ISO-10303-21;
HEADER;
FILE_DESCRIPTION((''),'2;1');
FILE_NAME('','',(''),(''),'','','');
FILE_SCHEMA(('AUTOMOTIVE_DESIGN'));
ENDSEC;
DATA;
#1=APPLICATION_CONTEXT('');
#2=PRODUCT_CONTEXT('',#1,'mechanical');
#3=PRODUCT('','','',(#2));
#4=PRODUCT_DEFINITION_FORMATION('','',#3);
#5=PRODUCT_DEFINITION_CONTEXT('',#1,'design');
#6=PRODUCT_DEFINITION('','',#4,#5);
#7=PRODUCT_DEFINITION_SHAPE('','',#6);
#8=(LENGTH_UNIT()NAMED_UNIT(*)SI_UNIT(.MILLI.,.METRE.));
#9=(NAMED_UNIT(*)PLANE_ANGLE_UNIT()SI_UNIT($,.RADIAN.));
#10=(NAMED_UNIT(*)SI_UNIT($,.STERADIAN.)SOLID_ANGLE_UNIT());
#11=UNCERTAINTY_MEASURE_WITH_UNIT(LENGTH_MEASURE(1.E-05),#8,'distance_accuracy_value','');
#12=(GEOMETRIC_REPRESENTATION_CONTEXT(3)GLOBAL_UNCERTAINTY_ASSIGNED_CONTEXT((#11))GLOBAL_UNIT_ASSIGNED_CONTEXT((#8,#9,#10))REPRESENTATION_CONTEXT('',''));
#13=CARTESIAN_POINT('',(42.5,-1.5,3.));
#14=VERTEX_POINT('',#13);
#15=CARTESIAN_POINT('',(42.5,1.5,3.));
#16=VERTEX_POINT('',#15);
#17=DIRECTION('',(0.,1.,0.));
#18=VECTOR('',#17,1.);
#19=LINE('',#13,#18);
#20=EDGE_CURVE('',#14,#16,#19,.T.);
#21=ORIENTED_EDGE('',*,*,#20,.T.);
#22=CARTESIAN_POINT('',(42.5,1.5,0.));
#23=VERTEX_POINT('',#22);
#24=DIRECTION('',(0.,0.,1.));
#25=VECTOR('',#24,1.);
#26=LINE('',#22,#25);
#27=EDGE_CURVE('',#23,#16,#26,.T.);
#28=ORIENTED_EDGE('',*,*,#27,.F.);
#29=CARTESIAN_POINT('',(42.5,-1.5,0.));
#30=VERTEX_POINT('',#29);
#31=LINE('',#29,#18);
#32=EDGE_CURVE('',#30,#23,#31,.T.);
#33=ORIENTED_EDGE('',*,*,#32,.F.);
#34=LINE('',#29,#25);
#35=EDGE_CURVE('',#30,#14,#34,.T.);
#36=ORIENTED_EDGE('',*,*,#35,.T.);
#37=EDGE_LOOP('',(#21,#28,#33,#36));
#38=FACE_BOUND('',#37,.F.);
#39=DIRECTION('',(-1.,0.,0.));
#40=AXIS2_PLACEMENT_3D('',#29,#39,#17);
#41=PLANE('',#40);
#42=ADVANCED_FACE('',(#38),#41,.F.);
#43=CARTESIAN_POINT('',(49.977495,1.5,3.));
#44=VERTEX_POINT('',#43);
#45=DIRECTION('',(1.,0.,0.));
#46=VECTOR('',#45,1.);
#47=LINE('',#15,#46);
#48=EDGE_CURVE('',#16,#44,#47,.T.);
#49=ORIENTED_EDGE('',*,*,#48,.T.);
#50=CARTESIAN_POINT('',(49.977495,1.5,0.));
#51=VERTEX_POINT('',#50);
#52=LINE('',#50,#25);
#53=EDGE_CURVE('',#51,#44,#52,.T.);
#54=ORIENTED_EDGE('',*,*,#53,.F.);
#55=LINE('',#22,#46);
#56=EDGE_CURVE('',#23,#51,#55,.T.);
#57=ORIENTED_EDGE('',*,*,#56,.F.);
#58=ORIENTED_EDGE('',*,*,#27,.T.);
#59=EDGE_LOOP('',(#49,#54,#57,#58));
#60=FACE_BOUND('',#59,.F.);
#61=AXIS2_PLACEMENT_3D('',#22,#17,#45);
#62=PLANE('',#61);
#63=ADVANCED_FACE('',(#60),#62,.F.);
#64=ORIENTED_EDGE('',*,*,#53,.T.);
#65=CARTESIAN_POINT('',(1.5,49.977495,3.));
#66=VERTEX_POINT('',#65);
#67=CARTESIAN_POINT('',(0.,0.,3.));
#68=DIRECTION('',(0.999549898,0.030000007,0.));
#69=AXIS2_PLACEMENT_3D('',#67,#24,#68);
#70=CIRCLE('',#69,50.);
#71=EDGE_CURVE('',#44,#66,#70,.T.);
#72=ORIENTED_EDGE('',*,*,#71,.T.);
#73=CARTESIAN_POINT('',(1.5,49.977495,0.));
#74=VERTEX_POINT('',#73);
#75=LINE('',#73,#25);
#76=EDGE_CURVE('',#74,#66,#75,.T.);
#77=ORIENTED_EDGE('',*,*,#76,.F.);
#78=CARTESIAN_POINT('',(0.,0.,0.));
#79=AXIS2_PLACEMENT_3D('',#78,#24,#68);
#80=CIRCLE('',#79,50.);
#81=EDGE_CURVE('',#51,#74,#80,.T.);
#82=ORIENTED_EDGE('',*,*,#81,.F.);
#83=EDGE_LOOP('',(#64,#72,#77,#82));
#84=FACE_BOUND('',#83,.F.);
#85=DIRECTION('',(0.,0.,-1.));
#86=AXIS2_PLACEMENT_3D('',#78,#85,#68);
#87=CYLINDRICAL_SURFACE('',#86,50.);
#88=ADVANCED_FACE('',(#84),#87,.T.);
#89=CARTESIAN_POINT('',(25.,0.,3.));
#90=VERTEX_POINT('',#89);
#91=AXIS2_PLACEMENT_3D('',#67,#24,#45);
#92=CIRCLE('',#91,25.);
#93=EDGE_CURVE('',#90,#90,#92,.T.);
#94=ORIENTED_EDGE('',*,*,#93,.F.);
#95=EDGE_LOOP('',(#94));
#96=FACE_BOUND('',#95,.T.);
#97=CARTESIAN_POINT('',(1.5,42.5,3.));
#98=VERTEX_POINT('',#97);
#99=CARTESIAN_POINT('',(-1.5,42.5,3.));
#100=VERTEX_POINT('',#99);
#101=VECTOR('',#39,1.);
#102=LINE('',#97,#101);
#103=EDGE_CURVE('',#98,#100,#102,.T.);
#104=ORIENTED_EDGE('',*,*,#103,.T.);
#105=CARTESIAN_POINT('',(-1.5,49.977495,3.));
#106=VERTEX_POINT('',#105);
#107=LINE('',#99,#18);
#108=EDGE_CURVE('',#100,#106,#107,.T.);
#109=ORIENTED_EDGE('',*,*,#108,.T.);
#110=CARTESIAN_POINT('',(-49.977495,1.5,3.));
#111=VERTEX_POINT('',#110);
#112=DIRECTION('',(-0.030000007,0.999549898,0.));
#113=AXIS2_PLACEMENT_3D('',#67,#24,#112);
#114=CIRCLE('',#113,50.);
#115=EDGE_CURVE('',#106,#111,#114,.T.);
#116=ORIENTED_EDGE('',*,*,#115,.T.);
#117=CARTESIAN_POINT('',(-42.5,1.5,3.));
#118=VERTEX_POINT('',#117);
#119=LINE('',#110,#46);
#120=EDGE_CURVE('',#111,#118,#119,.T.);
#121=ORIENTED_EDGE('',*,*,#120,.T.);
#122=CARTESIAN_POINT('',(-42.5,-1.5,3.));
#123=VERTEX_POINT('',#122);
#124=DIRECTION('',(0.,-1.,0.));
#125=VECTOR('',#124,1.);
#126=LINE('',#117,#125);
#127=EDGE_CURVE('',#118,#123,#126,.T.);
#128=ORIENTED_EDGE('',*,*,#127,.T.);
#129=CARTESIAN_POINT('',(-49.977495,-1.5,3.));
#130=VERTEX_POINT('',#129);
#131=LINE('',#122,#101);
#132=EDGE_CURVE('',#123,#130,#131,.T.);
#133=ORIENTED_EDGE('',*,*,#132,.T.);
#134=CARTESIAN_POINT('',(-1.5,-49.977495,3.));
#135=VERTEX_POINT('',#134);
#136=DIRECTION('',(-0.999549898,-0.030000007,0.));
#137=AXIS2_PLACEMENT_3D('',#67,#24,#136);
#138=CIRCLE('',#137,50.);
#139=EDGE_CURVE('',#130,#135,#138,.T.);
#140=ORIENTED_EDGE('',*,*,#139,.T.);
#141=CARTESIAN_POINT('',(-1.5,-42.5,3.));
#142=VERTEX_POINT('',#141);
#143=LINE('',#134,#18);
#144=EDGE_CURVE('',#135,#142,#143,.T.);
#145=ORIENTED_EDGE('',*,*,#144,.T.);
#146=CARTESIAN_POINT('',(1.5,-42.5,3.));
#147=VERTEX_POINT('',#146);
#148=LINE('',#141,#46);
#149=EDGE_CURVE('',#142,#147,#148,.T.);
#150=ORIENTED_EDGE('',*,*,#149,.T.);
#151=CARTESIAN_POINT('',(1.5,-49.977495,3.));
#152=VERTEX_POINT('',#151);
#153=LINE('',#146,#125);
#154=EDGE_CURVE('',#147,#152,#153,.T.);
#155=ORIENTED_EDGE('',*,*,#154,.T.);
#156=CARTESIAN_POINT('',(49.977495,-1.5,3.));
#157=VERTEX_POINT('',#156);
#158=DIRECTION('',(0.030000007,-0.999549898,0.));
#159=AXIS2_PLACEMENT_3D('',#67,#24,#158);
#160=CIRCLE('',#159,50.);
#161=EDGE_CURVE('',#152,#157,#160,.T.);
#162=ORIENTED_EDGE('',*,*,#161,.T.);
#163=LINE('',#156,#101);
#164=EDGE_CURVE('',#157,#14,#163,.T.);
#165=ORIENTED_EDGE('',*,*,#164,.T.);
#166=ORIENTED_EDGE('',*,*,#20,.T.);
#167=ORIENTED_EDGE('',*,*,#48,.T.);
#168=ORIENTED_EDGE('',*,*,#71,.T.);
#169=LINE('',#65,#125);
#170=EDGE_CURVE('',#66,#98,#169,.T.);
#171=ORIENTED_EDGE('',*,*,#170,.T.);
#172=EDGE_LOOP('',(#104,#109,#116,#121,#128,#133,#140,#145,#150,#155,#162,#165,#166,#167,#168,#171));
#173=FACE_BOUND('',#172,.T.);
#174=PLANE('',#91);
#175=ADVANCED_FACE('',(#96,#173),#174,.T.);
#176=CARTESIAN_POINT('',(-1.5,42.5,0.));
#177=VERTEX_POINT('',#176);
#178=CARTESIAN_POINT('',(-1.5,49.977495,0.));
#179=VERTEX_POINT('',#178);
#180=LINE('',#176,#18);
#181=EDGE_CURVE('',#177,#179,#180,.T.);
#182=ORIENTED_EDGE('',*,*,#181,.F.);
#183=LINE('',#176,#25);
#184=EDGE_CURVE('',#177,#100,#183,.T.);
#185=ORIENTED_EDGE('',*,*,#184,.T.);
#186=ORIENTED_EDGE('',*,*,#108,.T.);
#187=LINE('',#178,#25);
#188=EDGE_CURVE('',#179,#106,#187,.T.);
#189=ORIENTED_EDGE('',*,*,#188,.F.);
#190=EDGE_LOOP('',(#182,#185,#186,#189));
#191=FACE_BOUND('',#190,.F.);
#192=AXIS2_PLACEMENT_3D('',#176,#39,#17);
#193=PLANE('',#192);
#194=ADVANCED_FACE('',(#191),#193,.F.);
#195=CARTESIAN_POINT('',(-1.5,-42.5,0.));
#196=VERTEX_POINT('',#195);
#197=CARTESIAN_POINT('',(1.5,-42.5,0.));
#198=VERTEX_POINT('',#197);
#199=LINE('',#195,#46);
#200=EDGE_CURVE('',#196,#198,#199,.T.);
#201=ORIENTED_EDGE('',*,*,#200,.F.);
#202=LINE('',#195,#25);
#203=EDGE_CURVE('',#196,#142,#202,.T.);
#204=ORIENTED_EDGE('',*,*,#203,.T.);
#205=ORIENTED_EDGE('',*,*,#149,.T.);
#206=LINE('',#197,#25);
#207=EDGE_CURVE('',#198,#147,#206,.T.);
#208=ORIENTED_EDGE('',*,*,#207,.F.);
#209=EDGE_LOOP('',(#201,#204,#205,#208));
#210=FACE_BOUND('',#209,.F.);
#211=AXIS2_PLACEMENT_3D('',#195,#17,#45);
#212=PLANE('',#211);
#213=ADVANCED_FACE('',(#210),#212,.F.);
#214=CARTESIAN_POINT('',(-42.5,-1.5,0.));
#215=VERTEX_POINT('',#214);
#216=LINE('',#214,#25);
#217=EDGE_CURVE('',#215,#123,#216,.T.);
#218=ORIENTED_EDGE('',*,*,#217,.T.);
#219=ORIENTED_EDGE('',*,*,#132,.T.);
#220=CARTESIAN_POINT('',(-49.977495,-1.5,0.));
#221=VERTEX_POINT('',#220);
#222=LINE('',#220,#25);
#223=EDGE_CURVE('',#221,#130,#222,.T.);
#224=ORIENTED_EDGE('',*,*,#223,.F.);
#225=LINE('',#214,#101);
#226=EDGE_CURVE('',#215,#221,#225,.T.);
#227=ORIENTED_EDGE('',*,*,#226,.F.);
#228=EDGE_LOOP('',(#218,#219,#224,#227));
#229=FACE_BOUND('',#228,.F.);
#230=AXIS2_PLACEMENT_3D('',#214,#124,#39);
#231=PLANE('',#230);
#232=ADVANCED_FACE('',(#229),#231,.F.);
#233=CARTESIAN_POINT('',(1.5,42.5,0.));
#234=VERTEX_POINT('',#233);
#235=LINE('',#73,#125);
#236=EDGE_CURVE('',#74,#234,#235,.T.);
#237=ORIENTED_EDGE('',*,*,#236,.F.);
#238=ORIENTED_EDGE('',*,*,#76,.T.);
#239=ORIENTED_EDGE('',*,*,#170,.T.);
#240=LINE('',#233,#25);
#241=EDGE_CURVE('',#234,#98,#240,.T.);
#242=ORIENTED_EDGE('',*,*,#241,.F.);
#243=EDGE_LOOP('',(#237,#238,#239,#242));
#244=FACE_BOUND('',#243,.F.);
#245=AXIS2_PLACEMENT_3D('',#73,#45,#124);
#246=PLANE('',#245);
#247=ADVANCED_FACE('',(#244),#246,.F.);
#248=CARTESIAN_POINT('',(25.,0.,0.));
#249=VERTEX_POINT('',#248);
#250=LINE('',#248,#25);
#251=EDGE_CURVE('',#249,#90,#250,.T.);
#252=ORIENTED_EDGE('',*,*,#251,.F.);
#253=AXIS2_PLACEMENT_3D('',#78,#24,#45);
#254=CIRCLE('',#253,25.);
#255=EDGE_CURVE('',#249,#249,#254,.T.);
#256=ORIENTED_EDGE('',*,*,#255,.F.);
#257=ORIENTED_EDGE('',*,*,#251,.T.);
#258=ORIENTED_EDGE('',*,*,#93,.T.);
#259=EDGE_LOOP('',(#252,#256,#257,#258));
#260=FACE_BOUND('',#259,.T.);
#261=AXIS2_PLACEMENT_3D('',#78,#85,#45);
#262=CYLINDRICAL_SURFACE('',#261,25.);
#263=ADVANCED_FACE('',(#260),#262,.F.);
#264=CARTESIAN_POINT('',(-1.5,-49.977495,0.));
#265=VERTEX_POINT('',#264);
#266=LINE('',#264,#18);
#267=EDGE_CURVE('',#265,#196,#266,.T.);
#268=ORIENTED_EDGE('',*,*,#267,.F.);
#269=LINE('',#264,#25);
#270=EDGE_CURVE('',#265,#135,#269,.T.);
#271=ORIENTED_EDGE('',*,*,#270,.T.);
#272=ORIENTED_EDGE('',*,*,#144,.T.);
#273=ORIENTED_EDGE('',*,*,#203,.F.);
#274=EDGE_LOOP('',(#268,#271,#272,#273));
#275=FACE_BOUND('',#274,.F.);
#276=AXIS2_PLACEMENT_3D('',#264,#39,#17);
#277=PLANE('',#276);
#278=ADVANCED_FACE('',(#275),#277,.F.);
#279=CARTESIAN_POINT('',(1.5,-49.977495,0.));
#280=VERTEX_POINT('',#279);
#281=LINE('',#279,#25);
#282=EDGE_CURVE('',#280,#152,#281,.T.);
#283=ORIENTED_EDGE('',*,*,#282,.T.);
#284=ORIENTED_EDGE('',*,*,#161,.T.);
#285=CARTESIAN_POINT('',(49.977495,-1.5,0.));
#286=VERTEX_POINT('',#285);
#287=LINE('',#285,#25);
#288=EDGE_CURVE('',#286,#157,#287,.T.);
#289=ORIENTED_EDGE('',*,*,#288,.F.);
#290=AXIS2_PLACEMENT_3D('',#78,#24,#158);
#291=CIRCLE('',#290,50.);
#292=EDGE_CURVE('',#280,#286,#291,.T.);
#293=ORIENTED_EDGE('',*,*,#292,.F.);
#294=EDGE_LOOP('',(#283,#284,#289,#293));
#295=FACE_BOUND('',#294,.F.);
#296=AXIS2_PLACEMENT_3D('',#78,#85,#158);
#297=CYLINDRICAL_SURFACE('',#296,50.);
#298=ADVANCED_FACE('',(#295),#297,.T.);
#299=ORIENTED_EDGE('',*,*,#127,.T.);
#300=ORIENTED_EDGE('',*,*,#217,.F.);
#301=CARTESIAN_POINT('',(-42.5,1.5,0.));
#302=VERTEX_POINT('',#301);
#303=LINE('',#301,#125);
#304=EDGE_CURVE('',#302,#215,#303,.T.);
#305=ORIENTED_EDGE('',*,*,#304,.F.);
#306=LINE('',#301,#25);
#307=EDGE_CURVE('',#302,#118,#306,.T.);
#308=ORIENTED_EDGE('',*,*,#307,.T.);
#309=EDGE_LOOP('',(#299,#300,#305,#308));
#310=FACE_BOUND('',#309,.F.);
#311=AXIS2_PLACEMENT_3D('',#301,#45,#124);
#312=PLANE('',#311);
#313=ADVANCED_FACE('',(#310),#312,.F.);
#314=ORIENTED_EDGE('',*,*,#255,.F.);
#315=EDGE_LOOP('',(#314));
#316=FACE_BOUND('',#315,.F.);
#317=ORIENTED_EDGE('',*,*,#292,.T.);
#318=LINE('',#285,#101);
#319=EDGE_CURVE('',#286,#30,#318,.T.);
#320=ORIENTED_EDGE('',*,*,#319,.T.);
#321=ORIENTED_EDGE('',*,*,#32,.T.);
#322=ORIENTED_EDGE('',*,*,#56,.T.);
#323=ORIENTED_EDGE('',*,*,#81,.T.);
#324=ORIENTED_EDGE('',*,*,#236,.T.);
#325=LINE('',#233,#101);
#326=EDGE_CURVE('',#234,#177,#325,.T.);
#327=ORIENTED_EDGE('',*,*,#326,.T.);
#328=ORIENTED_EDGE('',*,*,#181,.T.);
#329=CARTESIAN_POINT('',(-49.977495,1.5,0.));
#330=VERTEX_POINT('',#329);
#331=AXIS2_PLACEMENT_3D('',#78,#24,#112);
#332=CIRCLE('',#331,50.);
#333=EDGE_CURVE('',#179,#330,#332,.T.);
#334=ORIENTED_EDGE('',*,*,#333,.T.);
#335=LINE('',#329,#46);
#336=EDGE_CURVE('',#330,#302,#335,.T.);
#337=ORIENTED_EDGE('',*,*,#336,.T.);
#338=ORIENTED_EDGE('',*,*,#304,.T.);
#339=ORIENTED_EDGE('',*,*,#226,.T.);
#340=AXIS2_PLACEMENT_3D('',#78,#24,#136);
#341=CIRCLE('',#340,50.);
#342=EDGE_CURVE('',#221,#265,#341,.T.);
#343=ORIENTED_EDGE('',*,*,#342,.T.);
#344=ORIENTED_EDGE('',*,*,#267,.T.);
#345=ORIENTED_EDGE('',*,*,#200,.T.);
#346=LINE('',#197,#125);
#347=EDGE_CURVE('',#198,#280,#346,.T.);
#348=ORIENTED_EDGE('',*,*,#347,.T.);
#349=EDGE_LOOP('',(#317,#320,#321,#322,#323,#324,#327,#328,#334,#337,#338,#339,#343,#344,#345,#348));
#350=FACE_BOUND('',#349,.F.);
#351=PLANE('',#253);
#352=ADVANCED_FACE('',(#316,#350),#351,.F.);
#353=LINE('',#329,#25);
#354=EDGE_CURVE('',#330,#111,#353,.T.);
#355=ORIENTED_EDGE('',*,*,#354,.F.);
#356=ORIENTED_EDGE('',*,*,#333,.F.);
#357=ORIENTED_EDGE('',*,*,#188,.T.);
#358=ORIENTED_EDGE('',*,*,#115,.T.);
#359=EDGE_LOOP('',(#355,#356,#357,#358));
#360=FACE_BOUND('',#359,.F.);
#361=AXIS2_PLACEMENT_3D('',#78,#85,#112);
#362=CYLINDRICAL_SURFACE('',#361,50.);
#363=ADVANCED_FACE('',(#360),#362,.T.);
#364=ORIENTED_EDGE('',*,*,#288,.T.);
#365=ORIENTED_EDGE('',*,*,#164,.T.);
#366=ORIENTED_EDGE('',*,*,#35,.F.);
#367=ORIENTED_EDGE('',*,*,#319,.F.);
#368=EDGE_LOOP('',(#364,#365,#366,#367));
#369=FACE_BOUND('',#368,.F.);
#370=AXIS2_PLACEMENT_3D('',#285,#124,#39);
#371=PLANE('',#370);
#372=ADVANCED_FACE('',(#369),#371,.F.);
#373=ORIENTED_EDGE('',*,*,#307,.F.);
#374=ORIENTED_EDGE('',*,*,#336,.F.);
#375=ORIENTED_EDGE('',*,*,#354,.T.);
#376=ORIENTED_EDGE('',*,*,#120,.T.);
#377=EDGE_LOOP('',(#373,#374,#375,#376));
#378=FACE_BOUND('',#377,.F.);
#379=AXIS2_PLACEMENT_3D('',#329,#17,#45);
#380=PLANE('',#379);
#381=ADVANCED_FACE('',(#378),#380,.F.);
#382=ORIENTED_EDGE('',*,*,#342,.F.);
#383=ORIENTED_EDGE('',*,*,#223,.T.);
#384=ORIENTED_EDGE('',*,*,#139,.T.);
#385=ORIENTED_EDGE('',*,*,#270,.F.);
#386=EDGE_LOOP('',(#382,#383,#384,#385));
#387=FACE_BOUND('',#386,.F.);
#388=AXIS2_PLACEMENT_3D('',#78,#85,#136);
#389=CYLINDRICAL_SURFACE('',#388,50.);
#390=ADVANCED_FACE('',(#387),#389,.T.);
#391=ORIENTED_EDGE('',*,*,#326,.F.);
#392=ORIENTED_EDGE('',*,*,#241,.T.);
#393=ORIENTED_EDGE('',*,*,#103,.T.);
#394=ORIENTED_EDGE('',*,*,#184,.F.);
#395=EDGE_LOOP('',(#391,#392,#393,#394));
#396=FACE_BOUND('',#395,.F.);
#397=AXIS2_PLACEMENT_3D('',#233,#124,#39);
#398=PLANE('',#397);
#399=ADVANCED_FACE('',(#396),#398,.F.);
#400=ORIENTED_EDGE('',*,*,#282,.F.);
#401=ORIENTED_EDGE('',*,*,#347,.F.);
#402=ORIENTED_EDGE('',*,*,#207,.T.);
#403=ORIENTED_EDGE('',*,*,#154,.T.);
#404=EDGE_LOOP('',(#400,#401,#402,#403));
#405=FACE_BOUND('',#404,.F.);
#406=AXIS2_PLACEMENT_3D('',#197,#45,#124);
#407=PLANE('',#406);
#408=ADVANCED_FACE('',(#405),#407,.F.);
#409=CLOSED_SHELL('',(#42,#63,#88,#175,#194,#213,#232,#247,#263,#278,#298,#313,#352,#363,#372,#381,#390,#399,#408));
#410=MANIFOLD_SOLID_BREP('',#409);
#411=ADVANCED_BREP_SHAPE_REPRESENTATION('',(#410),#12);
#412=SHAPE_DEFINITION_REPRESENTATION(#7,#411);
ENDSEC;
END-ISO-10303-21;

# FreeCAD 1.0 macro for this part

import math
import FreeCAD as App
import Part
import Sketcher

doc = App.newDocument("Part")
body = doc.addObject("PartDesign::Body", "Body")

# Sketch on XY plane
sketch1 = body.newObject("Sketcher::SketchObject", "Sketch")
sketch1.AttachmentSupport = (doc.getObject("XY_Plane"), [""])
sketch1.MapMode = "FlatFace"
sketch1.addGeometry(Part.LineSegment(App.Vector(-1.5, 42.5, 0), App.Vector(-1.5, 50, 0)), False)
sketch1.addGeometry(Part.ArcOfCircle(Part.Circle(App.Vector(0, 0, 0), App.Vector(0, 0, 1), 50), math.radians(92), math.radians(178)), False)
sketch1.addGeometry(Part.LineSegment(App.Vector(-50, 1.5, 0), App.Vector(-42.5, 1.5, 0)), False)
sketch1.addGeometry(Part.LineSegment(App.Vector(-42.5, 1.5, 0), App.Vector(-42.5, -1.5, 0)), False)
sketch1.addGeometry(Part.LineSegment(App.Vector(-42.5, -1.5, 0), App.Vector(-50, -1.5, 0)), False)
sketch1.addGeometry(Part.ArcOfCircle(Part.Circle(App.Vector(0, 0, 0), App.Vector(0, 0, 1), 50), math.radians(-178), math.radians(-92)), False)
sketch1.addGeometry(Part.LineSegment(App.Vector(-1.5, -50, 0), App.Vector(-1.5, -42.5, 0)), False)
sketch1.addGeometry(Part.LineSegment(App.Vector(-1.5, -42.5, 0), App.Vector(1.5, -42.5, 0)), False)
sketch1.addGeometry(Part.LineSegment(App.Vector(1.5, -42.5, 0), App.Vector(1.5, -50, 0)), False)
sketch1.addGeometry(Part.ArcOfCircle(Part.Circle(App.Vector(0, 0, 0), App.Vector(0, 0, 1), 50), math.radians(-88), math.radians(-2)), False)
sketch1.addGeometry(Part.LineSegment(App.Vector(50, -1.5, 0), App.Vector(42.5, -1.5, 0)), False)
sketch1.addGeometry(Part.LineSegment(App.Vector(42.5, -1.5, 0), App.Vector(42.5, 1.5, 0)), False)
sketch1.addGeometry(Part.LineSegment(App.Vector(42.5, 1.5, 0), App.Vector(50, 1.5, 0)), False)
sketch1.addGeometry(Part.ArcOfCircle(Part.Circle(App.Vector(0, 0, 0), App.Vector(0, 0, 1), 50), math.radians(2), math.radians(88)), False)
sketch1.addGeometry(Part.LineSegment(App.Vector(1.5, 50, 0), App.Vector(1.5, 42.5, 0)), False)
sketch1.addGeometry(Part.LineSegment(App.Vector(1.5, 42.5, 0), App.Vector(-1.5, 42.5, 0)), False)
sketch1.addGeometry(Part.Circle(App.Vector(0, 0, 0), App.Vector(0, 0, 1), 25), False)
sketch1.addConstraint(Sketcher.Constraint("Coincident", 0, 2, 1, 1))
sketch1.addConstraint(Sketcher.Constraint("Coincident", 1, 2, 2, 1))
sketch1.addConstraint(Sketcher.Constraint("Coincident", 2, 2, 3, 1))
sketch1.addConstraint(Sketcher.Constraint("Coincident", 3, 2, 4, 1))
sketch1.addConstraint(Sketcher.Constraint("Coincident", 4, 2, 5, 1))
sketch1.addConstraint(Sketcher.Constraint("Coincident", 5, 2, 6, 1))
sketch1.addConstraint(Sketcher.Constraint("Coincident", 6, 2, 7, 1))
sketch1.addConstraint(Sketcher.Constraint("Coincident", 7, 2, 8, 1))
sketch1.addConstraint(Sketcher.Constraint("Coincident", 8, 2, 9, 1))
sketch1.addConstraint(Sketcher.Constraint("Coincident", 9, 2, 10, 1))
sketch1.addConstraint(Sketcher.Constraint("Coincident", 10, 2, 11, 1))
sketch1.addConstraint(Sketcher.Constraint("Coincident", 11, 2, 12, 1))
sketch1.addConstraint(Sketcher.Constraint("Coincident", 12, 2, 13, 1))
sketch1.addConstraint(Sketcher.Constraint("Coincident", 13, 2, 14, 1))
sketch1.addConstraint(Sketcher.Constraint("Coincident", 14, 2, 15, 1))
sketch1.addConstraint(Sketcher.Constraint("Coincident", 15, 2, 0, 1))
sketch1.addConstraint(Sketcher.Constraint("Vertical", 0))
sketch1.addConstraint(Sketcher.Constraint("Horizontal", 2))
sketch1.addConstraint(Sketcher.Constraint("Vertical", 3))
sketch1.addConstraint(Sketcher.Constraint("Horizontal", 4))
sketch1.addConstraint(Sketcher.Constraint("Vertical", 6))
sketch1.addConstraint(Sketcher.Constraint("Horizontal", 7))
sketch1.addConstraint(Sketcher.Constraint("Vertical", 8))
sketch1.addConstraint(Sketcher.Constraint("Horizontal", 10))
sketch1.addConstraint(Sketcher.Constraint("Vertical", 11))
sketch1.addConstraint(Sketcher.Constraint("Horizontal", 12))
sketch1.addConstraint(Sketcher.Constraint("Vertical", 14))
sketch1.addConstraint(Sketcher.Constraint("Horizontal", 15))
sketch1.addConstraint(Sketcher.Constraint("Coincident", 1, 3, -1, 1))
sketch1.addConstraint(Sketcher.Constraint("Coincident", 5, 3, -1, 1))
sketch1.addConstraint(Sketcher.Constraint("Coincident", 9, 3, -1, 1))
sketch1.addConstraint(Sketcher.Constraint("Coincident", 13, 3, -1, 1))
sketch1.addConstraint(Sketcher.Constraint("Coincident", 16, 3, -1, 1))
sketch1.addConstraint(Sketcher.Constraint("Equal", 1, 5))
sketch1.addConstraint(Sketcher.Constraint("Equal", 5, 9))
sketch1.addConstraint(Sketcher.Constraint("Equal", 9, 13))
sketch1.addConstraint(Sketcher.Constraint("Symmetric", 2, 2, 10, 2, -1, 1))
sketch1.addConstraint(Sketcher.Constraint("Symmetric", 6, 2, 14, 2, -1, 1))
sketch1.addConstraint(Sketcher.Constraint("Horizontal", 5, 2, 8, 2))
sketch1.addConstraint(Sketcher.Constraint("Horizontal", 4, 2, 9, 2))
sketch1.addConstraint(Sketcher.Constraint("Horizontal", 2, 2, 11, 2))
sketch1.addConstraint(Sketcher.Constraint("Horizontal", 0, 2, 13, 2))
sketch1.addConstraint(Sketcher.Constraint("Equal", 12, 0))
sketch1.addConstraint(Sketcher.Constraint("Equal", 15, 3))
sketch1.addConstraint(Sketcher.Constraint("Diameter", 16, 50.0))
sketch1.addConstraint(Sketcher.Constraint("Radius", 1, 50.0))
sketch1.addConstraint(Sketcher.Constraint("DistanceX", 7, 1, 7, 2, 3.0))
sketch1.addConstraint(Sketcher.Constraint("DistanceX", 2, 2, -1, 1, 42.5))
pad1 = body.newObject("PartDesign::Pad", "Pad")
pad1.Profile = sketch1
pad1.Length = 3

doc.recompute()
